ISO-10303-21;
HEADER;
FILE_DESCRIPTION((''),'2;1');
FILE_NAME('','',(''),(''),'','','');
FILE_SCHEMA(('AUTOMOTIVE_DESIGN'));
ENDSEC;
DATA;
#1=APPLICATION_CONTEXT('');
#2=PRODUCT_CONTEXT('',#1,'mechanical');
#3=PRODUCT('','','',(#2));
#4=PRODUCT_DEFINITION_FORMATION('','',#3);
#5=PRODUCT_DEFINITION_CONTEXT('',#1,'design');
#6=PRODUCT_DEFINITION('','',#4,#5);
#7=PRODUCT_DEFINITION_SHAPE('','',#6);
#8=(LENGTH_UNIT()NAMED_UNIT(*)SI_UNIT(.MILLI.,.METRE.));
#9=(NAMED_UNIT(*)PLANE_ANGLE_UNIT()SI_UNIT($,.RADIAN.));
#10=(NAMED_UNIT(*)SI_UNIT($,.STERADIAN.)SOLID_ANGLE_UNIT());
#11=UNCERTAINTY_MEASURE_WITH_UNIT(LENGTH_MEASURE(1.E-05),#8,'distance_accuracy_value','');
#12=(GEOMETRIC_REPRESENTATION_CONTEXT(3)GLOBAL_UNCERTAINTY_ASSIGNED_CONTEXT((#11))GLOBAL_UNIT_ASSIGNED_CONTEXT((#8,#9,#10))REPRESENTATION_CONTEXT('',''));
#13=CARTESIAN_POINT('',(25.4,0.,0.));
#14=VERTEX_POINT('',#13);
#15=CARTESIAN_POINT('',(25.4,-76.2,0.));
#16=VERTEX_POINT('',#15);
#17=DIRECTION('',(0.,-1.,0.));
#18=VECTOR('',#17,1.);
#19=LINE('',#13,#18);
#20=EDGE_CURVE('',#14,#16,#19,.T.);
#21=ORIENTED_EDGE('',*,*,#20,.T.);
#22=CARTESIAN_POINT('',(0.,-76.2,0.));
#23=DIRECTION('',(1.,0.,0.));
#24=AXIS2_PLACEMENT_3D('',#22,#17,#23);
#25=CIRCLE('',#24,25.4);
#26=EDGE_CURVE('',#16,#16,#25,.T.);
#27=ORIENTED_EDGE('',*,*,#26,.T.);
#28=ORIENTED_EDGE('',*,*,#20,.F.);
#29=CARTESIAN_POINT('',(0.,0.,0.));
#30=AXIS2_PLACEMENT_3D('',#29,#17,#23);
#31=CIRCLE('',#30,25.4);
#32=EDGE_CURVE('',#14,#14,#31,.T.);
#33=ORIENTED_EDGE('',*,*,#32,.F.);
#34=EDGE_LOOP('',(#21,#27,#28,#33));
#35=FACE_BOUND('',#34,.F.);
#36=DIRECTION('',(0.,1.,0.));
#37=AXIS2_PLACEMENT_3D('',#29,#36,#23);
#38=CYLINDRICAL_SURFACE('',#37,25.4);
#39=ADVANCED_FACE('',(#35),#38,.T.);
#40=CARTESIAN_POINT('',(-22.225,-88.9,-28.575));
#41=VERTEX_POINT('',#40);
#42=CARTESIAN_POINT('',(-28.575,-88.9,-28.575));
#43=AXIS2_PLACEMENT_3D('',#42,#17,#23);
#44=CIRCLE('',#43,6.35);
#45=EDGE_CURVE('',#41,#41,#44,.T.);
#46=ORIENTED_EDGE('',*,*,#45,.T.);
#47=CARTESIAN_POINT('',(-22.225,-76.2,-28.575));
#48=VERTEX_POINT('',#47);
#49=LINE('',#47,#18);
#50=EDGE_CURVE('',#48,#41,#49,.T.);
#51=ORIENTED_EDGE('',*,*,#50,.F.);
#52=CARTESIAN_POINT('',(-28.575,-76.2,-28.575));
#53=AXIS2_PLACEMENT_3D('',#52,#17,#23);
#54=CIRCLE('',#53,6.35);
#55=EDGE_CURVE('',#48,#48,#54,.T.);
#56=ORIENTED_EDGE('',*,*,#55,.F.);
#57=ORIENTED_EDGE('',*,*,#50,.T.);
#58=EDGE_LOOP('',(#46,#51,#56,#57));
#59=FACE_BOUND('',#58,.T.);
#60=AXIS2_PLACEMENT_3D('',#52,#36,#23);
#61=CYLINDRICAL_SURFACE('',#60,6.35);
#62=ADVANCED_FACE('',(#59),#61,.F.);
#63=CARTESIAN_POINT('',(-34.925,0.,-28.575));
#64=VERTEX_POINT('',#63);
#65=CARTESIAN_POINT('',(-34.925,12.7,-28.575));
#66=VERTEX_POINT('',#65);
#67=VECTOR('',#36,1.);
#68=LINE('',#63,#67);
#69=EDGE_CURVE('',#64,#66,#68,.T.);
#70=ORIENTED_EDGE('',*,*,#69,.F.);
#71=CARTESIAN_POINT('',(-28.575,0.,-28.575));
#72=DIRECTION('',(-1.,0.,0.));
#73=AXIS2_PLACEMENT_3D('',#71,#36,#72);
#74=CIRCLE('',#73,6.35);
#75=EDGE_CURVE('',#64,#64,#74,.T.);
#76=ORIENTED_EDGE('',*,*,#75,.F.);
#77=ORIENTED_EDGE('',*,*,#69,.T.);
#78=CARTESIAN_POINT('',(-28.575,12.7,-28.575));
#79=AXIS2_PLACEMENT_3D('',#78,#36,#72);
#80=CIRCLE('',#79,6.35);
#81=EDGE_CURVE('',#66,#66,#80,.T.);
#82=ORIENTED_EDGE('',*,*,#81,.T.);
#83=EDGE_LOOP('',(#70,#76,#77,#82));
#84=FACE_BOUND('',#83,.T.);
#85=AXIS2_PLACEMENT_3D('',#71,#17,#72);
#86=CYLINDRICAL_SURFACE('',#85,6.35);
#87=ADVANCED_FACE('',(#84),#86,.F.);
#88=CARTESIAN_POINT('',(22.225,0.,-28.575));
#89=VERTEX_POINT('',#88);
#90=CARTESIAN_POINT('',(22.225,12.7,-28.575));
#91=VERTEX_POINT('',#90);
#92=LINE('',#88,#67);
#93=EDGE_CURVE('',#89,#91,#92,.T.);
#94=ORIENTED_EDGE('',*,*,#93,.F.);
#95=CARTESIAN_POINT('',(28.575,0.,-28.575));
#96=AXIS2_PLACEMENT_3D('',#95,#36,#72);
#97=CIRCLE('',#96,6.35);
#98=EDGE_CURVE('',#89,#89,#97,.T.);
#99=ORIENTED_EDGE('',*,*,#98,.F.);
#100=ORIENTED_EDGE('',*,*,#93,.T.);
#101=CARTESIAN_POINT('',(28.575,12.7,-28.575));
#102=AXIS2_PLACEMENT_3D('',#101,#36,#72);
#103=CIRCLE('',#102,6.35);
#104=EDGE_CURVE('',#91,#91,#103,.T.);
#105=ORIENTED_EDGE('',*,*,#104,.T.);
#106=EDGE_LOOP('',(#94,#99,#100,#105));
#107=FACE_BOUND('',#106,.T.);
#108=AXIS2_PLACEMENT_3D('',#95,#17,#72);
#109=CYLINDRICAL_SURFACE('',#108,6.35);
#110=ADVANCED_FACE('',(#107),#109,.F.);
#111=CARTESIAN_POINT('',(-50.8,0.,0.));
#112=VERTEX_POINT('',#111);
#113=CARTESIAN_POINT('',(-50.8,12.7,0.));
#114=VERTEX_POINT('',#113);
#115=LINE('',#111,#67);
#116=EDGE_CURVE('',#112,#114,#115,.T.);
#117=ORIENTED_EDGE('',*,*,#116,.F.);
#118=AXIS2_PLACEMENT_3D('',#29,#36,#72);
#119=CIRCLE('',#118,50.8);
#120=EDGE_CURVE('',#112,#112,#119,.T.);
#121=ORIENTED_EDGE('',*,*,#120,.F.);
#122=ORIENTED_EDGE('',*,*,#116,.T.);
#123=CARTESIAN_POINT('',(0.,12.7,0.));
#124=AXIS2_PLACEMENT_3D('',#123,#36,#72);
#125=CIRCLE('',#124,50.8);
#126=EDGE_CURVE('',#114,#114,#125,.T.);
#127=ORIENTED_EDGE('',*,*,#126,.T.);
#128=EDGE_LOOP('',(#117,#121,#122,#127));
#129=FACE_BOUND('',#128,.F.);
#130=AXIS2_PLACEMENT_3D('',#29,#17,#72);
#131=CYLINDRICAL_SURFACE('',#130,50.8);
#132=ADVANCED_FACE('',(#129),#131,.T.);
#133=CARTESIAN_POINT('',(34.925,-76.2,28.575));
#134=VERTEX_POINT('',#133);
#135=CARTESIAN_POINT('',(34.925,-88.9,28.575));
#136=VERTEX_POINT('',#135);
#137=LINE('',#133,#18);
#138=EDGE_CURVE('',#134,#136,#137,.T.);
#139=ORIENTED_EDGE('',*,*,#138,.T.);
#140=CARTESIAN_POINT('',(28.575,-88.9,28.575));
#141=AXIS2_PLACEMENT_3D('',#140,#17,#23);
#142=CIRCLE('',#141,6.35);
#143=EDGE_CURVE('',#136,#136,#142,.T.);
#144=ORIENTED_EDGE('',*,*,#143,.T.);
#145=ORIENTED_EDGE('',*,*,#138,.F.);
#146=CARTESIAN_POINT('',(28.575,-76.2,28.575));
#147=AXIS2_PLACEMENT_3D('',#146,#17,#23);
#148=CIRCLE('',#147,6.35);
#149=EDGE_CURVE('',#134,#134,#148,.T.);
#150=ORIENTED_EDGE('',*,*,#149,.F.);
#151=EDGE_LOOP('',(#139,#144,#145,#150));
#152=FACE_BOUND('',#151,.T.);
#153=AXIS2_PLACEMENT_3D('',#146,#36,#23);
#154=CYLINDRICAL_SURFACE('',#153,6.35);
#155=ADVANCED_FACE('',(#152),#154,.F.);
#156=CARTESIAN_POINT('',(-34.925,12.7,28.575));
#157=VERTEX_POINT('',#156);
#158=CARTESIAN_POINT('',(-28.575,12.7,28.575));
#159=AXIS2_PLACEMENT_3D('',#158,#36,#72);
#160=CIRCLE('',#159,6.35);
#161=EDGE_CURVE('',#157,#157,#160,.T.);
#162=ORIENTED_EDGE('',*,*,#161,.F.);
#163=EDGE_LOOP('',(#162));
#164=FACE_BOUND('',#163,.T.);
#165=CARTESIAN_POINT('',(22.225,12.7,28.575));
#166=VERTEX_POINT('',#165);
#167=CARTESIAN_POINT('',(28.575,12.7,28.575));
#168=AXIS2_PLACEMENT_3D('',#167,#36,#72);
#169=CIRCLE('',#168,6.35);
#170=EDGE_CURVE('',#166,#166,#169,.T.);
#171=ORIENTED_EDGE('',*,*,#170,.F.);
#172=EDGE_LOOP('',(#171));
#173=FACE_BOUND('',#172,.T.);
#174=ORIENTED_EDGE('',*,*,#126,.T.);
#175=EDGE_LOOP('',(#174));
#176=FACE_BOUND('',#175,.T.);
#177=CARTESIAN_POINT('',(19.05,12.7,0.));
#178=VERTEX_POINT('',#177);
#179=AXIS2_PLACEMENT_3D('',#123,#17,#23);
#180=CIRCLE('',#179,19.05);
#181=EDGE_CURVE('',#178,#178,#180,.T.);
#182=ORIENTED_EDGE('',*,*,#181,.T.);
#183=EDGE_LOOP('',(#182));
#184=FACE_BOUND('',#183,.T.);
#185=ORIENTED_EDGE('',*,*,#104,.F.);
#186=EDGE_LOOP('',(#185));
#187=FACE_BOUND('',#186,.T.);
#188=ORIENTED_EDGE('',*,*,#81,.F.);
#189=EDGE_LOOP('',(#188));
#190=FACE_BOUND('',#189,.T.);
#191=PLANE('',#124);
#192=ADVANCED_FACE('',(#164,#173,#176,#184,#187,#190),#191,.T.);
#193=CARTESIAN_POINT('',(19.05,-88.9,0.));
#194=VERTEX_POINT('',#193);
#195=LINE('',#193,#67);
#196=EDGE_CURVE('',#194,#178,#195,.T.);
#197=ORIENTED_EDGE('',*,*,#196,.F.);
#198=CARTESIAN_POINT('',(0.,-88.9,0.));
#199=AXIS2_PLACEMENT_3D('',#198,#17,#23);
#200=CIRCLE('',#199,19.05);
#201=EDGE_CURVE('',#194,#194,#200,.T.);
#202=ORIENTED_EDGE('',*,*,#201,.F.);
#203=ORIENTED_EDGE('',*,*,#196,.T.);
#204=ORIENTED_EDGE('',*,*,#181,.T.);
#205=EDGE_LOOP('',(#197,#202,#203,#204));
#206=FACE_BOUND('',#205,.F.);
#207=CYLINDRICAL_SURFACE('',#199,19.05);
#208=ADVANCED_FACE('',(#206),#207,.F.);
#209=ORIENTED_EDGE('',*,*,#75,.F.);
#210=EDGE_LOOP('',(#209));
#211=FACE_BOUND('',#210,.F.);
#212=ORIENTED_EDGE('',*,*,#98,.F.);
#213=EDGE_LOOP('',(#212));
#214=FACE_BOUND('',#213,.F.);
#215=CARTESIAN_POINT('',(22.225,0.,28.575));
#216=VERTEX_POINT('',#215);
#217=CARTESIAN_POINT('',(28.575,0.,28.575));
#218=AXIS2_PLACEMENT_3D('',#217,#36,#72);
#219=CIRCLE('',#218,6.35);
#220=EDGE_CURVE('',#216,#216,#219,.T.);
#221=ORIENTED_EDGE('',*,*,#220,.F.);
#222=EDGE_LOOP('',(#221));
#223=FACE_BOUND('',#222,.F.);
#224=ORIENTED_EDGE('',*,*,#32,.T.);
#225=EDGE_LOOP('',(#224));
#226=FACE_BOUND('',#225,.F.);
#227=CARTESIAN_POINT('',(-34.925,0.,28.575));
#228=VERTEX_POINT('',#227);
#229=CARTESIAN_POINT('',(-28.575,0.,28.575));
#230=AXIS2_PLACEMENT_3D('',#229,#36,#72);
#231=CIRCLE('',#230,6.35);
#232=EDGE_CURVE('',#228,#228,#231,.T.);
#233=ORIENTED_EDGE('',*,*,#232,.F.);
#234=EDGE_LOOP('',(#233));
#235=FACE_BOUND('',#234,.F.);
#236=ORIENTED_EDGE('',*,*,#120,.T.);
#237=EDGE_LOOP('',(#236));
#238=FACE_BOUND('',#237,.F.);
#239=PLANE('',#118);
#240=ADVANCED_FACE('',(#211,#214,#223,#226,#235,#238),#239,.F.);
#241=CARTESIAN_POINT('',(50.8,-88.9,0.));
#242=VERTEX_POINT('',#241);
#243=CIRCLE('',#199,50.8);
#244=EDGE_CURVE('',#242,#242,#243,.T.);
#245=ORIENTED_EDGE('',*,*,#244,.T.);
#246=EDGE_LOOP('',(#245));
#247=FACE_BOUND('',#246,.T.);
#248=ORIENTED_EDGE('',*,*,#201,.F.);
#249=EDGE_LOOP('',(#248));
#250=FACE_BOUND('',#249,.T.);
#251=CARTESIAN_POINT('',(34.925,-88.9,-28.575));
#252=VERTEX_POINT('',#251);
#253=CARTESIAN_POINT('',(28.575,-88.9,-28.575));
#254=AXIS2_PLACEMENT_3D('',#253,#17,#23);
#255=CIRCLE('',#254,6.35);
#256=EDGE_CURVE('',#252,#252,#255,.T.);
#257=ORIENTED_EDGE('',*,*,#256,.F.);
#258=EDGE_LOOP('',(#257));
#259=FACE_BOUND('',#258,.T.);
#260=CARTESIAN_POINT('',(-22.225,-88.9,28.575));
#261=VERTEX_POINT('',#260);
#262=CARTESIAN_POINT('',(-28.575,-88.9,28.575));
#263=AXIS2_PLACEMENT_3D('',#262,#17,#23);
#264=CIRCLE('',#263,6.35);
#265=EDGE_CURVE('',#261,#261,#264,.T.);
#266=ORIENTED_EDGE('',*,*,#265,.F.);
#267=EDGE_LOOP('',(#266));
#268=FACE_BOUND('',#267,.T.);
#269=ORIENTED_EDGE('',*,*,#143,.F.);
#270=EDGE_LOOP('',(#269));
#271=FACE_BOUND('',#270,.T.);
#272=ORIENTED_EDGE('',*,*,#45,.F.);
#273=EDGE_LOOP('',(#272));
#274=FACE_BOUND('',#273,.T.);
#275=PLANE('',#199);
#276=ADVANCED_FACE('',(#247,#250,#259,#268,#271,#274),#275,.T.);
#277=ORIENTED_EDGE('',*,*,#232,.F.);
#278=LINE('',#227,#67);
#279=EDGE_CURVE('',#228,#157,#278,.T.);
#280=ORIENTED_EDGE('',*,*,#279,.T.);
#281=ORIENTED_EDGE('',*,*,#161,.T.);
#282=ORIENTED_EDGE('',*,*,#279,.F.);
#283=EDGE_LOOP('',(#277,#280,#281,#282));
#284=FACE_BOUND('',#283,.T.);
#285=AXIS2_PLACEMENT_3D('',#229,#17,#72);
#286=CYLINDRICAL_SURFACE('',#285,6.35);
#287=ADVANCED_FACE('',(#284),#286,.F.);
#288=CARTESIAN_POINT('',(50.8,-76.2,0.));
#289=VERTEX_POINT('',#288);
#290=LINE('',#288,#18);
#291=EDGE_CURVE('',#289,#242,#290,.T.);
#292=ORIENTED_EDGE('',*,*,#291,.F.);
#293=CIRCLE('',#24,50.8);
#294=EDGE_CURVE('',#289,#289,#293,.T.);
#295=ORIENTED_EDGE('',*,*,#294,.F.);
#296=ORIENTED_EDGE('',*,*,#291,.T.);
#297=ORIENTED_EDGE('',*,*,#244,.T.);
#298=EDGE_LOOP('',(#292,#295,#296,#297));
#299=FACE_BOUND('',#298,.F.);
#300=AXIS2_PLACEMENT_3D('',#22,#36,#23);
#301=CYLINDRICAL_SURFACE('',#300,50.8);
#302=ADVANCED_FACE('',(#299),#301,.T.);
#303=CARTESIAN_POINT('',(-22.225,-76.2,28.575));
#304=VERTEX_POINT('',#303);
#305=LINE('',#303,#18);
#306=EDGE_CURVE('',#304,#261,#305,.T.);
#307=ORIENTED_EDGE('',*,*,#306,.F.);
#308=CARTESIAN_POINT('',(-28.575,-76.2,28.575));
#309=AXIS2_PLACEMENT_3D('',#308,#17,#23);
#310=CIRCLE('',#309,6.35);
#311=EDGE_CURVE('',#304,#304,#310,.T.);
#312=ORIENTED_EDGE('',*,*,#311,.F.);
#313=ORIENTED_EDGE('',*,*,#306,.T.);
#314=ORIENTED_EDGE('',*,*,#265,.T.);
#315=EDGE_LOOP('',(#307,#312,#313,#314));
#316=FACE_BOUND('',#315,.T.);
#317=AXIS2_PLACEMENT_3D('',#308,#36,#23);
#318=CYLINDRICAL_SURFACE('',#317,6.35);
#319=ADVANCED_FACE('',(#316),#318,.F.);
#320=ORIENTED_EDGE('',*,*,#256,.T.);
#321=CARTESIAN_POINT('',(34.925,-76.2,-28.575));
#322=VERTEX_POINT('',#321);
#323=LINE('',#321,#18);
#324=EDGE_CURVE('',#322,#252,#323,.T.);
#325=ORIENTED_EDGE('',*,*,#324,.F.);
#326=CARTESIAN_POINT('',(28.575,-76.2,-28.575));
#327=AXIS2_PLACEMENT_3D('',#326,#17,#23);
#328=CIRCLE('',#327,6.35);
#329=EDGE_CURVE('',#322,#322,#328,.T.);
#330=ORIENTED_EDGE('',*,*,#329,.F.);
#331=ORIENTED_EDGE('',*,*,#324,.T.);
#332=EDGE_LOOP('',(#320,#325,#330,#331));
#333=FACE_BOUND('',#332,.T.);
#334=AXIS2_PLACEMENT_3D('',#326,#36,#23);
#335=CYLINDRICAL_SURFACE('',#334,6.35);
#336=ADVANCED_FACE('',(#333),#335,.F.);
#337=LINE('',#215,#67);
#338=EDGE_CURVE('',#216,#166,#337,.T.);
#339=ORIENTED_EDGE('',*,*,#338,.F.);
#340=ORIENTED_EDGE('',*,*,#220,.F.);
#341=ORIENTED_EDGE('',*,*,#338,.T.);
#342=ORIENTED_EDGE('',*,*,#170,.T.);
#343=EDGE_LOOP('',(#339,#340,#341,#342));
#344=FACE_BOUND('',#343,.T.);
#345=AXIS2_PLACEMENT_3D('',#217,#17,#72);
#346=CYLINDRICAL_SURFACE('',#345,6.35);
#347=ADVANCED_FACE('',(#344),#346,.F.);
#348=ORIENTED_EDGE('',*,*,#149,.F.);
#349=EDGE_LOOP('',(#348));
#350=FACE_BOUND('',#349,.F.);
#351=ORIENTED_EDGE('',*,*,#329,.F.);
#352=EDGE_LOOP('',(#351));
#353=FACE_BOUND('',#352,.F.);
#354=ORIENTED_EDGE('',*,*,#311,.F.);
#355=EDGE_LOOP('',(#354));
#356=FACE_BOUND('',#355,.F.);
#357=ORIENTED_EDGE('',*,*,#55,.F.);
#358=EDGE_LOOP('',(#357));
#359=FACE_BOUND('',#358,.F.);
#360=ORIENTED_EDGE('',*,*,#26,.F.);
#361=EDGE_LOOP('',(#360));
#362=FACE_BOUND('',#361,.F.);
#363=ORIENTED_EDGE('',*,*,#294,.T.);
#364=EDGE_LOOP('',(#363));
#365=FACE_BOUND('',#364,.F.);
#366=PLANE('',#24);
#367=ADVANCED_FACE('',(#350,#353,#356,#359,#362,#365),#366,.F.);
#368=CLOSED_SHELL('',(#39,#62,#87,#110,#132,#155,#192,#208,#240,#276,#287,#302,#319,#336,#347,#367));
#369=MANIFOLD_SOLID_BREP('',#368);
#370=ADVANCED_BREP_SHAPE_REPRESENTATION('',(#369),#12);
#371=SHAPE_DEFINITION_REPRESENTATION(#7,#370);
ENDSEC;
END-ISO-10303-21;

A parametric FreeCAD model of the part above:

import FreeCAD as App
import Part
import Sketcher

V = App.Vector
Q = App.Units.Quantity

doc = App.newDocument("Part")
body = doc.addObject("PartDesign::Body", "Body")

# Sketch on XZ plane
sketch1 = body.newObject("Sketcher::SketchObject", "Sketch")
sketch1.AttachmentSupport = (doc.getObject("XZ_Plane"), [""])
sketch1.MapMode = "FlatFace"
sketch1.addGeometry(Part.Circle(V(0, 0, 0), V(0, 0, 1), 25), False)
sketch1.addConstraint([
    Sketcher.Constraint("Coincident", 0, 3, -1, 1),
    Sketcher.Constraint("Diameter", 0, Q("2 in")),
])
pad1 = body.newObject("PartDesign::Pad", "Pad")
pad1.Profile = sketch1
pad1.Length = Q("3 in")

# Sketch on XZ plane
sketch2 = body.newObject("Sketcher::SketchObject", "Sketch001")
sketch2.AttachmentSupport = (doc.getObject("XZ_Plane"), [""])
sketch2.MapMode = "FlatFace"
sketch2.AttachmentOffset = App.Placement(V(0, 0, 3 * 25.4), App.Rotation())
sketch2.addGeometry([
    Part.Circle(V(0, 0, 0), V(0, 0, 1), 51),  # 0
    Part.Circle(V(-29, -29, 0), V(0, 0, 1), 6),  # 1
    Part.Circle(V(29, -29, 0), V(0, 0, 1), 6),  # 2
    Part.Circle(V(-29, 29, 0), V(0, 0, 1), 6),  # 3
    Part.Circle(V(29, 29, 0), V(0, 0, 1), 6),  # 4
], False)
sketch2.addConstraint([
    Sketcher.Constraint("Coincident", 0, 3, -1, 1),
    Sketcher.Constraint("Equal", 1, 2),
    Sketcher.Constraint("Equal", 2, 3),
    Sketcher.Constraint("Equal", 3, 4),
    Sketcher.Constraint("Symmetric", 2, 3, 3, 3, -1, 1),
    Sketcher.Constraint("Symmetric", 1, 3, 4, 3, -1, 1),
    Sketcher.Constraint("Symmetric", 1, 3, 2, 3, -2),
    Sketcher.Constraint("Diameter", 0, Q("4 in")),
    Sketcher.Constraint("Diameter", 1, Q("0.5 in")),
    Sketcher.Constraint("DistanceX", 1, 3, 2, 3, Q("2.25 in")),
    Sketcher.Constraint("DistanceY", 1, 3, 3, 3, Q("2.25 in")),
])
pad2 = body.newObject("PartDesign::Pad", "Pad001")
pad2.Profile = sketch2
pad2.Length = Q("0.5 in")

# Sketch on XZ plane
sketch3 = body.newObject("Sketcher::SketchObject", "Sketch002")
sketch3.AttachmentSupport = (doc.getObject("XZ_Plane"), [""])
sketch3.MapMode = "FlatFace"
sketch3.addGeometry([
    Part.Circle(V(0, 0, 0), V(0, 0, 1), 51),  # 0
    Part.Circle(V(29, -29, 0), V(0, 0, 1), 6),  # 1
    Part.Circle(V(-29, -29, 0), V(0, 0, 1), 6),  # 2
    Part.Circle(V(29, 29, 0), V(0, 0, 1), 6),  # 3
    Part.Circle(V(-29, 29, 0), V(0, 0, 1), 6),  # 4
], False)
sketch3.addConstraint([
    Sketcher.Constraint("Coincident", 0, 3, -1, 1),
    Sketcher.Constraint("Equal", 1, 2),
    Sketcher.Constraint("Equal", 2, 3),
    Sketcher.Constraint("Equal", 3, 4),
    Sketcher.Constraint("Symmetric", 2, 3, 3, 3, -1, 1),
    Sketcher.Constraint("Symmetric", 1, 3, 4, 3, -1, 1),
    Sketcher.Constraint("Symmetric", 1, 3, 2, 3, -2),
    Sketcher.Constraint("Diameter", 0, Q("4 in")),
    Sketcher.Constraint("Diameter", 1, Q("0.5 in")),
    Sketcher.Constraint("DistanceX", 2, 3, 1, 3, Q("2.25 in")),
    Sketcher.Constraint("DistanceY", 1, 3, 3, 3, Q("2.25 in")),
])
pad3 = body.newObject("PartDesign::Pad", "Pad002")
pad3.Profile = sketch3
pad3.Length = Q("0.5 in")
pad3.Reversed = True

# Sketch on XZ plane
sketch4 = body.newObject("Sketcher::SketchObject", "Sketch003")
sketch4.AttachmentSupport = (doc.getObject("XZ_Plane"), [""])
sketch4.MapMode = "FlatFace"
sketch4.AttachmentOffset = App.Placement(V(0, 0, 3.5 * 25.4), App.Rotation())
sketch4.addGeometry(Part.Circle(V(0, 0, 0), V(0, 0, 1), 19), False)
sketch4.addConstraint([
    Sketcher.Constraint("Coincident", 0, 3, -1, 1),
    Sketcher.Constraint("Diameter", 0, Q("1.5 in")),
])
pocket1 = body.newObject("PartDesign::Pocket", "Pocket")
pocket1.Profile = sketch4
pocket1.Length = Q("5.43 in")

doc.recompute()
